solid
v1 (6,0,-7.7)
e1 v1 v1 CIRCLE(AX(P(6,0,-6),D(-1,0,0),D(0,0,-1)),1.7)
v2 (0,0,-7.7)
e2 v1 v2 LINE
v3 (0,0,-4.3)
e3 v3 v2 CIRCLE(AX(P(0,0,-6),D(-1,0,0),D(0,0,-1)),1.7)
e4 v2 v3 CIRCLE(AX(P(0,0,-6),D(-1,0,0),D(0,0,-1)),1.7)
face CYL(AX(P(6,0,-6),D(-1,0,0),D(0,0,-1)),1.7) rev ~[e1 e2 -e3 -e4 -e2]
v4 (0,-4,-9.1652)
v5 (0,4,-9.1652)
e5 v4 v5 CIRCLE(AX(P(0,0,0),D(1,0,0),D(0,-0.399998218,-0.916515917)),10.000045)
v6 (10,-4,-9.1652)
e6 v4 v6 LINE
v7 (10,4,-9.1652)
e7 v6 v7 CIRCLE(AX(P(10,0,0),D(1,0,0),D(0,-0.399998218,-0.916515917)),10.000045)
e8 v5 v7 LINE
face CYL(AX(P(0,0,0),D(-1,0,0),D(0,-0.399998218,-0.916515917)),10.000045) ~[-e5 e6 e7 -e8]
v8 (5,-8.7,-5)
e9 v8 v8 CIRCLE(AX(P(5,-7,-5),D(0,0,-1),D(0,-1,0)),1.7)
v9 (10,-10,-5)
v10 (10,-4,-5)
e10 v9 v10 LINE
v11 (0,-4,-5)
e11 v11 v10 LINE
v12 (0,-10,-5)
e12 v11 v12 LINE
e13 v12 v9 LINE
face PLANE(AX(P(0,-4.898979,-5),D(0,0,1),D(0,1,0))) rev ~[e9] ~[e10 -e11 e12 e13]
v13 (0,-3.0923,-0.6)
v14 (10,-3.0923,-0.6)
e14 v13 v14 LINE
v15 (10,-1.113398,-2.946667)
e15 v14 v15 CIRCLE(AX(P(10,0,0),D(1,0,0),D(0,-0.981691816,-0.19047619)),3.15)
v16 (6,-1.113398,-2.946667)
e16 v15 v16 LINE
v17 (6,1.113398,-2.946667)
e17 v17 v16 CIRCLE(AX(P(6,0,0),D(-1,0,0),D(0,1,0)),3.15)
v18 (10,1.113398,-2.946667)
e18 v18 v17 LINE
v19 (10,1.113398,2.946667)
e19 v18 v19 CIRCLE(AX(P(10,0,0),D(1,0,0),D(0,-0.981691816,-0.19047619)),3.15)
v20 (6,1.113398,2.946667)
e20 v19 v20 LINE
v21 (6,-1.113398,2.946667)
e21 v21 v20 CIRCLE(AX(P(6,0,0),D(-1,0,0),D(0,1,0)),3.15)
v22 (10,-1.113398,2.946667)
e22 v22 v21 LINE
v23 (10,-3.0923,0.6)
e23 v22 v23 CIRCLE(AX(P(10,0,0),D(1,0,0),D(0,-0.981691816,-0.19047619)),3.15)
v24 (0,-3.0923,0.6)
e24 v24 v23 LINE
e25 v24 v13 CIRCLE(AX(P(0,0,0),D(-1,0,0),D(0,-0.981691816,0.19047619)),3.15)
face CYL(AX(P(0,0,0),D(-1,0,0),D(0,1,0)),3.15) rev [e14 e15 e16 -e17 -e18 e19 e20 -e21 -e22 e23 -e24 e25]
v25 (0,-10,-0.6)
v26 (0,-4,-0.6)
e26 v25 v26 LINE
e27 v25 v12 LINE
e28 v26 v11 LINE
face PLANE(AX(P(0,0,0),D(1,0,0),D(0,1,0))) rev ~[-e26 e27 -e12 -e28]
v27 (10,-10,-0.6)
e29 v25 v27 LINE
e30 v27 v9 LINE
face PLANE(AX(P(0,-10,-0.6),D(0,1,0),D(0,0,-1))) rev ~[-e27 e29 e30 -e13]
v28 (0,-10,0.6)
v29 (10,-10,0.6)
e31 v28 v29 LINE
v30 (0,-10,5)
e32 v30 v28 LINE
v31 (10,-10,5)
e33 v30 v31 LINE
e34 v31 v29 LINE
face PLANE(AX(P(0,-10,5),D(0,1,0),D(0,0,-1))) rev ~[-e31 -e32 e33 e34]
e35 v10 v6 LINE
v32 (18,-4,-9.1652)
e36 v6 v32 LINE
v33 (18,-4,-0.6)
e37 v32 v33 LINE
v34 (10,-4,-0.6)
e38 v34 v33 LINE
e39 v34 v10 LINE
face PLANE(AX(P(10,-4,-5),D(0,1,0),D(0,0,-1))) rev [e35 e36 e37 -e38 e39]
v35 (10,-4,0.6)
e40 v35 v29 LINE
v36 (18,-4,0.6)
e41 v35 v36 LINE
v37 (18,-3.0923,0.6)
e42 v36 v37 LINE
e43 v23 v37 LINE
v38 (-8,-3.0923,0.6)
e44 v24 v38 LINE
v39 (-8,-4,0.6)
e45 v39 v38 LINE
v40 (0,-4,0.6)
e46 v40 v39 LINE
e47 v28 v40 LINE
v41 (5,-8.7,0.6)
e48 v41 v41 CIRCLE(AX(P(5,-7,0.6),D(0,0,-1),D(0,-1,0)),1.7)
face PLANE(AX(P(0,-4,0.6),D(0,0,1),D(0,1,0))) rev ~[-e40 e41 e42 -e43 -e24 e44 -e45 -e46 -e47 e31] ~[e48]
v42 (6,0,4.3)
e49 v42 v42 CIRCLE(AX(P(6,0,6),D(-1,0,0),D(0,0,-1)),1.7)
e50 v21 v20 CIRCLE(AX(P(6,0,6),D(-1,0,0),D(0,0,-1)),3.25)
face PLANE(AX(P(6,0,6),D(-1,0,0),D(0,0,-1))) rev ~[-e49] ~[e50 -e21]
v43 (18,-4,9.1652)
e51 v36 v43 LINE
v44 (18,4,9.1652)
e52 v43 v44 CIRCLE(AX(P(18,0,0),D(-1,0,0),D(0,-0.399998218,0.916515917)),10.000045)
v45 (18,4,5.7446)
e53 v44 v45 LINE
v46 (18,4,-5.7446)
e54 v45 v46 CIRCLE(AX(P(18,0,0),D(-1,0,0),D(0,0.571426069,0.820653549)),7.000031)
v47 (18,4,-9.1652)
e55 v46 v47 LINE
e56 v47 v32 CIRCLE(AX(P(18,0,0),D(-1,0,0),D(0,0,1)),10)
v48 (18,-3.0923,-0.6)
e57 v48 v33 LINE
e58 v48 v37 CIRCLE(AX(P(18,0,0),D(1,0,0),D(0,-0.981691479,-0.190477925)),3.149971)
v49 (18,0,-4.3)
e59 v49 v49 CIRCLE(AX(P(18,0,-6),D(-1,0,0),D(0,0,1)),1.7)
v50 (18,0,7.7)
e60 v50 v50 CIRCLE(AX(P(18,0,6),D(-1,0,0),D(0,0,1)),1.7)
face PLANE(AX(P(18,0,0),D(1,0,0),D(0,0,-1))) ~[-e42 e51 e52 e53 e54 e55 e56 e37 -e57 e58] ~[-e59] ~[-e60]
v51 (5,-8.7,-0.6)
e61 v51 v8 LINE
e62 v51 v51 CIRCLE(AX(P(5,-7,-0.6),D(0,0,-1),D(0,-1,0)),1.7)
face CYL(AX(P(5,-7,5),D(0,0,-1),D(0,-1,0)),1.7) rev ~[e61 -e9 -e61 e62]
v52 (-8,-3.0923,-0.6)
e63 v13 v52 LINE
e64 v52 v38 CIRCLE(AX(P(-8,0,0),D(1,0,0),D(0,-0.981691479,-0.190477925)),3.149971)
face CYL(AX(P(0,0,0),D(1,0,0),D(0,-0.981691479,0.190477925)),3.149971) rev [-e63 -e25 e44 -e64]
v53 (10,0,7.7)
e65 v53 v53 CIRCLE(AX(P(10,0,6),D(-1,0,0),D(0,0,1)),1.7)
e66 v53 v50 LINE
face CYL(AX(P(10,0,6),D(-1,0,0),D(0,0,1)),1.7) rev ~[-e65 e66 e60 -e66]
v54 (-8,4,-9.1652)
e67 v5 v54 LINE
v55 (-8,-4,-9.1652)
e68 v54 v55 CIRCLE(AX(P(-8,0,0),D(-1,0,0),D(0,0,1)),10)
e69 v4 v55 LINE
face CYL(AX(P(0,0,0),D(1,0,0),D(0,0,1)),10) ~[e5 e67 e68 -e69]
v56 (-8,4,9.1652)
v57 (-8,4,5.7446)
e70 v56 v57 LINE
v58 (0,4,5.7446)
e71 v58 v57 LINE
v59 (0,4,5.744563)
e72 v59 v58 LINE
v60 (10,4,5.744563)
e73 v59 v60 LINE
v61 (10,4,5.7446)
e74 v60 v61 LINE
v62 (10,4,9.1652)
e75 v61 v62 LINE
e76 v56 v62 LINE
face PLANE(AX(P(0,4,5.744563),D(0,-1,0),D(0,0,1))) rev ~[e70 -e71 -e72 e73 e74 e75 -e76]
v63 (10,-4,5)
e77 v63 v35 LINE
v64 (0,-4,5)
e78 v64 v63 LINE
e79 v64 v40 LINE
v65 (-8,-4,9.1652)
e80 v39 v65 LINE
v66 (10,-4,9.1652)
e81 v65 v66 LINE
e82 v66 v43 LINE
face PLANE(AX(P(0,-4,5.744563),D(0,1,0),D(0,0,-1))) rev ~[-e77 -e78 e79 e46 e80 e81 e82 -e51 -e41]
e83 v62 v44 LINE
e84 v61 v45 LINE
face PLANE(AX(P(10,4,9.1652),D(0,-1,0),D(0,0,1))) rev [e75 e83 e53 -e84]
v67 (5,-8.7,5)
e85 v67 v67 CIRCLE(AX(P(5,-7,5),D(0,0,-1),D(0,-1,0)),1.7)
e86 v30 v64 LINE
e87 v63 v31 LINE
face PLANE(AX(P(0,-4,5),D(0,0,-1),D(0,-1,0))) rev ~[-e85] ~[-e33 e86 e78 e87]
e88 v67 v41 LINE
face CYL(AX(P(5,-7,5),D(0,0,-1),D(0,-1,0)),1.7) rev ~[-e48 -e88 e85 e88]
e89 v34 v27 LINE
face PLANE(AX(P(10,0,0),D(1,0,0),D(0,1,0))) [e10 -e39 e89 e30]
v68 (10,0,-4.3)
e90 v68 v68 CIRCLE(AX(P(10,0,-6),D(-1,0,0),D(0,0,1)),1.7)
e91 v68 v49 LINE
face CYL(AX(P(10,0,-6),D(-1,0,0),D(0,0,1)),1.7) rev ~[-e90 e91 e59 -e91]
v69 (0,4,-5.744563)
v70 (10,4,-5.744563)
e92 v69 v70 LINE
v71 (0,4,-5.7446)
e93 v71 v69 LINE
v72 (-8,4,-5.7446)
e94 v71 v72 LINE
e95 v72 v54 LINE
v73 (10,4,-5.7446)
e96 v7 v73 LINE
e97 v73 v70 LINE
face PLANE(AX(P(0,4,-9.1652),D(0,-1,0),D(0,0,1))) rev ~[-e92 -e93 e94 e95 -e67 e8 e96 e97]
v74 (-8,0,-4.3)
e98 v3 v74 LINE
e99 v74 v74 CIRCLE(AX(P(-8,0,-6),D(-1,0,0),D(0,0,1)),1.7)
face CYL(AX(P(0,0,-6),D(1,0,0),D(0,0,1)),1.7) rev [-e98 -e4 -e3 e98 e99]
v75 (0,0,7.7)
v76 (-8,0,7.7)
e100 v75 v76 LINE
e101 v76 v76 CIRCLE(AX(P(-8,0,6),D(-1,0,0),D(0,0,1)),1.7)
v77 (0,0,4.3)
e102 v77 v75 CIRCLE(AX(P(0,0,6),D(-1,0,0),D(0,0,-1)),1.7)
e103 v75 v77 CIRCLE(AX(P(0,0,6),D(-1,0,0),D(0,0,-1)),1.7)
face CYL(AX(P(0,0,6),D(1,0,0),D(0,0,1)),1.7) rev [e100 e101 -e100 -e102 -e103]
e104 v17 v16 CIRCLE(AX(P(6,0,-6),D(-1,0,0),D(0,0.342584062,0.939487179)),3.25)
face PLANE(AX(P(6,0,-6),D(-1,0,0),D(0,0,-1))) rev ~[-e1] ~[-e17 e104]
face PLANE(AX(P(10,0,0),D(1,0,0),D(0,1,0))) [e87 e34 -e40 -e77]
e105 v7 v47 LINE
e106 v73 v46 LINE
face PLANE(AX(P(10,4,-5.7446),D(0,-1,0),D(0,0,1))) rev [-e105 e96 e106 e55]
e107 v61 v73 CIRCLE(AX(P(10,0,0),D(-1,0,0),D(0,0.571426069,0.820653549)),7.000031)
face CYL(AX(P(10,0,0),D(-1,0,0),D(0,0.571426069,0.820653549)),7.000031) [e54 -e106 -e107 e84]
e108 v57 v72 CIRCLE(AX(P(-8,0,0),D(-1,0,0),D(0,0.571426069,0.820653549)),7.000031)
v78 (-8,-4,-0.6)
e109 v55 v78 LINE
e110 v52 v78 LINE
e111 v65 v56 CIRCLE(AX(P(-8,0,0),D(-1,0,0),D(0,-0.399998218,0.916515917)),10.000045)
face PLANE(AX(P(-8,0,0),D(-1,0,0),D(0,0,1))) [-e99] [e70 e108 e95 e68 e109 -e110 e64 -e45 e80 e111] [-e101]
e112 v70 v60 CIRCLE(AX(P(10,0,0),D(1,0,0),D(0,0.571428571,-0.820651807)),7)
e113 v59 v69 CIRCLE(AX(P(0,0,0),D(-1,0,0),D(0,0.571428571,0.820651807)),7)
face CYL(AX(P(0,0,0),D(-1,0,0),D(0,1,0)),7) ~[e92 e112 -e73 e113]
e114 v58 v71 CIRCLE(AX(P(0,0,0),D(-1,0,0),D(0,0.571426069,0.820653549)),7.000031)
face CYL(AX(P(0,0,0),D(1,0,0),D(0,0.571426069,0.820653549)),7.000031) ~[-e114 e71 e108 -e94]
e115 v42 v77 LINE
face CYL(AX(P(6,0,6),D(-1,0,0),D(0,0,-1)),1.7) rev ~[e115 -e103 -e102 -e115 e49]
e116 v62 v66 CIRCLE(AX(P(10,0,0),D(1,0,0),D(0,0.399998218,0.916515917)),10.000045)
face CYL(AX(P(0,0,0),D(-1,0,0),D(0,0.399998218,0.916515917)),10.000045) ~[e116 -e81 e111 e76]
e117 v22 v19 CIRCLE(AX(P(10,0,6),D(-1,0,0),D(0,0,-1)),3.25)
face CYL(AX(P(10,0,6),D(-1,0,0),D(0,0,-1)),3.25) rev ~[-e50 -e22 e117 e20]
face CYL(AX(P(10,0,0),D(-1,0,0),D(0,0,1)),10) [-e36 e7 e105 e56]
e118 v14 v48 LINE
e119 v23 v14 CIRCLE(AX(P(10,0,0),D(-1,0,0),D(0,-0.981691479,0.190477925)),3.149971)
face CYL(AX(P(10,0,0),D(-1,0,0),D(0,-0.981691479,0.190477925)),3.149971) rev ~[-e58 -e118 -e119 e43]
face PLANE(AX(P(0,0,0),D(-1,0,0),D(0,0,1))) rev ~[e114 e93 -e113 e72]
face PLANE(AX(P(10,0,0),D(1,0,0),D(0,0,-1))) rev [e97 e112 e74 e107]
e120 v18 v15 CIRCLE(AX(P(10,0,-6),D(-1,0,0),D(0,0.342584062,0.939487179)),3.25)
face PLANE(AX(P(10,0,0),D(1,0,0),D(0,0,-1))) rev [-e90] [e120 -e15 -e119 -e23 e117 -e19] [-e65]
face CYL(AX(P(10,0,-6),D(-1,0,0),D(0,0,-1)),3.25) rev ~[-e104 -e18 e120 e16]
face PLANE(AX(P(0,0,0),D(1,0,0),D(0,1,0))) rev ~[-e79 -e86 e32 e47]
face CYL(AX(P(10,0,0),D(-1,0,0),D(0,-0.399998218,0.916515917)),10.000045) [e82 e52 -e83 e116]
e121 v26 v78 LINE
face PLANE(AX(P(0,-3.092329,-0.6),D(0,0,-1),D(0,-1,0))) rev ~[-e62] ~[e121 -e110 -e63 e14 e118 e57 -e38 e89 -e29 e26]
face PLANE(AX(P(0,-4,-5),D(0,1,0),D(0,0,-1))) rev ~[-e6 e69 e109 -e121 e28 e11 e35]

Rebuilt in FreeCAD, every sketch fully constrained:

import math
import FreeCAD as App
import Part
import Sketcher

V = App.Vector

doc = App.newDocument("Part")
body = doc.addObject("PartDesign::Body", "Body")

# Sketch on YZ plane
sketch1 = body.newObject("Sketcher::SketchObject", "Sketch")
sketch1.AttachmentSupport = (doc.getObject("YZ_Plane"), [""])
sketch1.MapMode = "FlatFace"
sketch1.addGeometry([
    Part.ArcOfCircle(Part.Circle(V(0, 0, 0), V(0, 0, 1), 3.15), math.radians(-169.019425), math.radians(169.019425)),  # 0
    Part.LineSegment(V(-3.092329, -0.6, 0), V(-10, -0.6, 0)),  # 1
    Part.LineSegment(V(-10, -0.6, 0), V(-10, -5, 0)),  # 2
    Part.LineSegment(V(-10, -5, 0), V(-4, -5, 0)),  # 3
    Part.LineSegment(V(-4, -5, 0), V(-4, -9.1652, 0)),  # 4
    Part.ArcOfCircle(Part.Circle(V(0, 0, 0), V(0, 0, 1), 10.000045), math.radians(-113.578067), math.radians(-66.421933)),  # 5
    Part.LineSegment(V(4, -9.1652, 0), V(4, -5.744563, 0)),  # 6
    Part.ArcOfCircle(Part.Circle(V(0, 0, 0), V(0, 0, 1), 7), math.radians(-55.150095), math.radians(55.150095)),  # 7
    Part.LineSegment(V(4, 5.744563, 0), V(4, 9.1652, 0)),  # 8
    Part.ArcOfCircle(Part.Circle(V(0, 0, 0), V(0, 0, 1), 10.000045), math.radians(66.421933), math.radians(113.578067)),  # 9
    Part.LineSegment(V(-4, 9.1652, 0), V(-4, 5, 0)),  # 10
    Part.LineSegment(V(-4, 5, 0), V(-10, 5, 0)),  # 11
    Part.LineSegment(V(-10, 5, 0), V(-10, 0.6, 0)),  # 12
    Part.LineSegment(V(-10, 0.6, 0), V(-3.092329, 0.6, 0)),  # 13
], False)
sketch1.addConstraint([
    Sketcher.Constraint("Coincident", 0, 1, 1, 1),
    Sketcher.Constraint("Coincident", 1, 2, 2, 1),
    Sketcher.Constraint("Coincident", 2, 2, 3, 1),
    Sketcher.Constraint("Coincident", 3, 2, 4, 1),
    Sketcher.Constraint("Coincident", 4, 2, 5, 1),
    Sketcher.Constraint("Coincident", 5, 2, 6, 1),
    Sketcher.Constraint("Coincident", 6, 2, 7, 1),
    Sketcher.Constraint("Coincident", 7, 2, 8, 1),
    Sketcher.Constraint("Coincident", 8, 2, 9, 1),
    Sketcher.Constraint("Coincident", 9, 2, 10, 1),
    Sketcher.Constraint("Coincident", 10, 2, 11, 1),
    Sketcher.Constraint("Coincident", 11, 2, 12, 1),
    Sketcher.Constraint("Coincident", 12, 2, 13, 1),
    Sketcher.Constraint("Coincident", 13, 2, 0, 2),
    Sketcher.Constraint("Horizontal", 1),
    Sketcher.Constraint("Vertical", 2),
    Sketcher.Constraint("Horizontal", 3),
    Sketcher.Constraint("Vertical", 4),
    Sketcher.Constraint("Vertical", 6),
    Sketcher.Constraint("Vertical", 8),
    Sketcher.Constraint("Vertical", 10),
    Sketcher.Constraint("Horizontal", 11),
    Sketcher.Constraint("Vertical", 12),
    Sketcher.Constraint("Horizontal", 13),
    Sketcher.Constraint("Coincident", 0, 3, -1, 1),
    Sketcher.Constraint("Coincident", 5, 3, -1, 1),
    Sketcher.Constraint("Coincident", 7, 3, -1, 1),
    Sketcher.Constraint("Coincident", 9, 3, -1, 1),
    Sketcher.Constraint("Equal", 5, 9),
    Sketcher.Constraint("Symmetric", 3, 2, 10, 2, -1),
    Sketcher.Constraint("Symmetric", 1, 2, 12, 2, -1),
    Sketcher.Constraint("Horizontal", 4, 2, 5, 2),
    Sketcher.Constraint("Horizontal", 8, 2, 9, 2),
    Sketcher.Constraint("Radius", 5, 10.0),
    Sketcher.Constraint("Radius", 7, 7.0),
    Sketcher.Constraint("Radius", 0, 3.15),
    Sketcher.Constraint("DistanceX", 1, 2, -1, 1, 10.0),
    Sketcher.Constraint("DistanceY", 2, 2, -1, 1, 5.0),
    Sketcher.Constraint("DistanceX", 4, 2, 5, 2, 8.0),
    Sketcher.Constraint("DistanceY", 0, 1, -1, 1, 0.6),
])
pad1 = body.newObject("PartDesign::Pad", "Pad")
pad1.Profile = sketch1
pad1.Length = 10

# Sketch on YZ plane
sketch2 = body.newObject("Sketcher::SketchObject", "Sketch001")
sketch2.AttachmentSupport = (doc.getObject("YZ_Plane"), [""])
sketch2.MapMode = "FlatFace"
sketch2.AttachmentOffset = App.Placement(V(0, 0, 10), App.Rotation())
sketch2.addGeometry([
    Part.Circle(V(0, 6, 0), V(0, 0, 1), 1.7),
    Part.Circle(V(0, -6, 0), V(0, 0, 1), 1.7),
], False)
sketch2.addConstraint([
    Sketcher.Constraint("Equal", 0, 1),
    Sketcher.Constraint("Symmetric", 0, 3, 1, 3, -1, 1),
    Sketcher.Constraint("PointOnObject", 0, 3, -2),
    Sketcher.Constraint("Diameter", 0, 3.4),
    Sketcher.Constraint("DistanceY", -1, 1, 0, 3, 6.0),
])
doc.recompute()
hole = body.newObject("PartDesign::Hole", "Hole")
hole.Profile = sketch2
hole.ThreadType = "None"
hole.Diameter = 3.4
hole.DepthType = "ThroughAll"
hole.HoleCutType = "Counterbore"
hole.HoleCutDiameter = 6.5
hole.HoleCutDepth = 4

# Sketch on XY plane
sketch3 = body.newObject("Sketcher::SketchObject", "Sketch002")
sketch3.AttachmentSupport = (doc.getObject("XY_Plane"), [""])
sketch3.MapMode = "FlatFace"
sketch3.AttachmentOffset = App.Placement(V(0, 0, 5), App.Rotation())
sketch3.addGeometry(Part.Circle(V(5, -7, 0), V(0, 0, 1), 1.7), False)
sketch3.addConstraint([
    Sketcher.Constraint("Diameter", 0, 3.4),
    Sketcher.Constraint("DistanceX", -1, 1, 0, 3, 5.0),
    Sketcher.Constraint("DistanceY", 0, 3, -1, 1, 7.0),
])
doc.recompute()
hole2 = body.newObject("PartDesign::Hole", "Hole001")
hole2.Profile = sketch3
hole2.ThreadType = "None"
hole2.Diameter = 3.4
hole2.DepthType = "ThroughAll"

# Sketch on YZ plane
sketch4 = body.newObject("Sketcher::SketchObject", "Sketch003")
sketch4.AttachmentSupport = (doc.getObject("YZ_Plane"), [""])
sketch4.MapMode = "FlatFace"
sketch4.addGeometry([
    Part.ArcOfCircle(Part.Circle(V(0, 0, 0), V(0, 0, 1), 7.000031), math.radians(-55.15027), math.radians(55.15027)),  # 0
    Part.LineSegment(V(4, -5.7446, 0), V(4, -9.1652, 0)),  # 1
    Part.ArcOfCircle(Part.Circle(V(0, 0, 0), V(0, 0, 1), 10), math.radians(-113.578067), math.radians(-66.421933)),  # 2
    Part.LineSegment(V(-4, -9.1652, 0), V(-4, -0.6, 0)),  # 3
    Part.LineSegment(V(-4, -0.6, 0), V(-3.0923, -0.6, 0)),  # 4
    Part.ArcOfCircle(Part.Circle(V(0, 0, 0), V(0, 0, 1), 3.149971), math.radians(-169.019323), math.radians(169.019323)),  # 5
    Part.LineSegment(V(-3.0923, 0.6, 0), V(-4, 0.6, 0)),  # 6
    Part.LineSegment(V(-4, 0.6, 0), V(-4, 9.1652, 0)),  # 7
    Part.ArcOfCircle(Part.Circle(V(0, 0, 0), V(0, 0, 1), 10.000045), math.radians(66.421933), math.radians(113.578067)),  # 8
    Part.LineSegment(V(4, 9.1652, 0), V(4, 5.7446, 0)),  # 9
    Part.Circle(V(0, 6, 0), V(0, 0, 1), 1.7),  # 10
    Part.Circle(V(0, -6, 0), V(0, 0, 1), 1.7),  # 11
], False)
sketch4.addConstraint([
    Sketcher.Constraint("Coincident", 0, 1, 1, 1),
    Sketcher.Constraint("Coincident", 1, 2, 2, 2),
    Sketcher.Constraint("Coincident", 2, 1, 3, 1),
    Sketcher.Constraint("Coincident", 3, 2, 4, 1),
    Sketcher.Constraint("Coincident", 4, 2, 5, 1),
    Sketcher.Constraint("Coincident", 5, 2, 6, 1),
    Sketcher.Constraint("Coincident", 6, 2, 7, 1),
    Sketcher.Constraint("Coincident", 7, 2, 8, 2),
    Sketcher.Constraint("Coincident", 8, 1, 9, 1),
    Sketcher.Constraint("Coincident", 9, 2, 0, 2),
    Sketcher.Constraint("Vertical", 1),
    Sketcher.Constraint("Vertical", 3),
    Sketcher.Constraint("Horizontal", 4),
    Sketcher.Constraint("Horizontal", 6),
    Sketcher.Constraint("Vertical", 7),
    Sketcher.Constraint("Vertical", 9),
    Sketcher.Constraint("Coincident", 0, 3, -1, 1),
    Sketcher.Constraint("Coincident", 2, 3, -1, 1),
    Sketcher.Constraint("Coincident", 5, 3, -1, 1),
    Sketcher.Constraint("Coincident", 8, 3, -1, 1),
    Sketcher.Constraint("Equal", 2, 8),
    Sketcher.Constraint("Equal", 10, 11),
    Sketcher.Constraint("Symmetric", 10, 3, 11, 3, -1, 1),
    Sketcher.Constraint("Symmetric", 3, 2, 6, 2, -1),
    Sketcher.Constraint("PointOnObject", 10, 3, -2),
    Sketcher.Constraint("Horizontal", 1, 2, 2, 1),
    Sketcher.Constraint("Horizontal", 7, 2, 8, 1),
    Sketcher.Constraint("Radius", 0, 7.0),
    Sketcher.Constraint("Radius", 2, 10.0),
    Sketcher.Constraint("Diameter", 10, 3.4),
    Sketcher.Constraint("Radius", 5, 3.15),
    Sketcher.Constraint("DistanceY", -1, 1, 10, 3, 6.0),
    Sketcher.Constraint("DistanceX", -1, 1, 0, 1, 4.0),
    Sketcher.Constraint("DistanceY", 3, 2, -1, 1, 0.6),
])
pad2 = body.newObject("PartDesign::Pad", "Pad001")
pad2.Profile = sketch4
pad2.Length = 8
pad2.Reversed = True
doc.recompute()

datumplane = body.newObject("PartDesign::Plane", "DatumPlane")
datumplane.AttachmentSupport = (doc.getObject("YZ_Plane"), [""])
datumplane.MapMode = "FlatFace"
datumplane.AttachmentOffset = App.Placement(V(0, 0, 5), App.Rotation())
mirrored = body.newObject("PartDesign::Mirrored", "Mirrored")
mirrored.Originals = [pad2]
mirrored.MirrorPlane = (datumplane, [""])
body.Tip = mirrored

doc.recompute()
